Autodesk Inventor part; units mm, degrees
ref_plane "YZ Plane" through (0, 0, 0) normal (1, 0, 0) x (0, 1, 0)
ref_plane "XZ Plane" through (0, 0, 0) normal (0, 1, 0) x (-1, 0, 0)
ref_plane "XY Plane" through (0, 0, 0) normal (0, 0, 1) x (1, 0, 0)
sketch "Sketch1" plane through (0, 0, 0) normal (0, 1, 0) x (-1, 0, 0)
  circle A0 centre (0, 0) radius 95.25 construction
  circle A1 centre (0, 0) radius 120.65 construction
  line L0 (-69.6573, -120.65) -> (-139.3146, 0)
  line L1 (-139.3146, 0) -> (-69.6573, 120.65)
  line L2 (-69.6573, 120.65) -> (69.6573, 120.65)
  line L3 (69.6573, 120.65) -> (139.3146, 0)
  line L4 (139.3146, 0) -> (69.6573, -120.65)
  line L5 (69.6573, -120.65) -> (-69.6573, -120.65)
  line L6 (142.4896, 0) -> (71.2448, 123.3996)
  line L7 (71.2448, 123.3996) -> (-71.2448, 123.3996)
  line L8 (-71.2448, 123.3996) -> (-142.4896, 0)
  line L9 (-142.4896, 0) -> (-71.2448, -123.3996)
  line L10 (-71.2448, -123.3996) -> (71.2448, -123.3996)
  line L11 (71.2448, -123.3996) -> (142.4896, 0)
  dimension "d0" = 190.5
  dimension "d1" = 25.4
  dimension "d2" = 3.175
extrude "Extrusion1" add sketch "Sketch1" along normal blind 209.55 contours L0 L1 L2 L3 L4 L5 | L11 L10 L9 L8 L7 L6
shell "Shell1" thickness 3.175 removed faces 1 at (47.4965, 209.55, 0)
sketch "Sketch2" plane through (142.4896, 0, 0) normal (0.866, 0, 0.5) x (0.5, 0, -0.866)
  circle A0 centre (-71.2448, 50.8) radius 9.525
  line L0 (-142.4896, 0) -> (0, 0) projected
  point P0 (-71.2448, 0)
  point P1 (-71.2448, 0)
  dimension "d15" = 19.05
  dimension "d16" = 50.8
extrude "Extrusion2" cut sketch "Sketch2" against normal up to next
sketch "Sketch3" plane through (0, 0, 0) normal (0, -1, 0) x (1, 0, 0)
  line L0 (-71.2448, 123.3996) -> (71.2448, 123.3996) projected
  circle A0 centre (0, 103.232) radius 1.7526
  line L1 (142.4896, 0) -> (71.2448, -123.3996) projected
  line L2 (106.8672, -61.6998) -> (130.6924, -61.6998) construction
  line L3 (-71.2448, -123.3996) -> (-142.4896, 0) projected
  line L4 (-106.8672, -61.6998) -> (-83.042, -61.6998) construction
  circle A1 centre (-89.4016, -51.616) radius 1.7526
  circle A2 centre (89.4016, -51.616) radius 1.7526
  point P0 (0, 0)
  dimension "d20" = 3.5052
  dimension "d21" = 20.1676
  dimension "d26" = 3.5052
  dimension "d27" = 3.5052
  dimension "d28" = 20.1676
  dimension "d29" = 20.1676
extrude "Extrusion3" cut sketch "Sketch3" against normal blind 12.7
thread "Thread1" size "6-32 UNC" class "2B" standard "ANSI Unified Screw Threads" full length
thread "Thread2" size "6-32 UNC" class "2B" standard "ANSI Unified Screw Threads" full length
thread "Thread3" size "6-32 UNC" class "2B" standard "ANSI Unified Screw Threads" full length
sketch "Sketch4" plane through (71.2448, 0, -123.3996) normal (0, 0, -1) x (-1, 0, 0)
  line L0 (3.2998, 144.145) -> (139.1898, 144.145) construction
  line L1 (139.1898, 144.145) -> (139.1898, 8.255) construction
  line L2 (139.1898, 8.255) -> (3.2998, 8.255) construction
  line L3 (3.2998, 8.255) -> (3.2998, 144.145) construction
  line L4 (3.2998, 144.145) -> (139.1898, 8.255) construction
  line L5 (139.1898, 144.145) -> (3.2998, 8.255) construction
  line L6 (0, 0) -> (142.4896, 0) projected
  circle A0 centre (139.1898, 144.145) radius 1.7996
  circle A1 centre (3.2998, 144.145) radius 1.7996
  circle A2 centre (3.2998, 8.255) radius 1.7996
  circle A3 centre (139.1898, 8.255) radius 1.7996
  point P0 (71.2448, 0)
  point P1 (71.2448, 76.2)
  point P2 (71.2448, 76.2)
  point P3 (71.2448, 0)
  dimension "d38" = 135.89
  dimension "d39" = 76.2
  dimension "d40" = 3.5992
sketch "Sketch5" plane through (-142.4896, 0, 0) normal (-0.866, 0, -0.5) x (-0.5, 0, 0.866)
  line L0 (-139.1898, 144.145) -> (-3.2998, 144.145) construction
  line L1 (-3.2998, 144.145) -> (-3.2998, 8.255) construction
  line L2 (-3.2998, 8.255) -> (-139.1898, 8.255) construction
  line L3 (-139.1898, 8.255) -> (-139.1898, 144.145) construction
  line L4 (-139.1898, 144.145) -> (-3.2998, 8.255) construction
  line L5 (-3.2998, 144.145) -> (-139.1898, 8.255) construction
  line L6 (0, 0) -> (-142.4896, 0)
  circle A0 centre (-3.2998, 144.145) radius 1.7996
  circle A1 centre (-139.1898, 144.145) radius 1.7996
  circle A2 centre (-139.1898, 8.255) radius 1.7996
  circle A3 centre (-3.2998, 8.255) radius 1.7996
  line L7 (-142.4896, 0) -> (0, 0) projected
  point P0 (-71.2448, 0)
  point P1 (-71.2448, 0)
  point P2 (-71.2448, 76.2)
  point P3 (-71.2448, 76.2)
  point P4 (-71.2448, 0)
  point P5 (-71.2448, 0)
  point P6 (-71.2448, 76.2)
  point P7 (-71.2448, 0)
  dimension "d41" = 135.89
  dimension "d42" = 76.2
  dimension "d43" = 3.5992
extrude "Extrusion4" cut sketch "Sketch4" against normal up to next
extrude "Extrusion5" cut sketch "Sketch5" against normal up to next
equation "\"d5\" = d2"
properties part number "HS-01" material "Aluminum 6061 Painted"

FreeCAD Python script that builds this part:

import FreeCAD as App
import Part
import Sketcher
Q = App.Units.Quantity


def faces_at(feature, points):
    """Names of the faces that lie closest to the given points."""
    faces = feature.Shape.Faces
    near = lambda p: min(range(len(faces)), key=lambda i: faces[i].distToShape(Part.Vertex(*p))[0])
    return sorted({f"Face{near(p) + 1}" for p in points})


def add_polygon(sketch, points):
    """Adds a closed chain of lines whose ends are joined by coincident constraints."""
    first, n = sketch.GeometryCount, len(points)
    for a, b in zip(points, points[1:] + points[:1]):
        sketch.addGeometry(Part.LineSegment(App.Vector(*a, 0), App.Vector(*b, 0)), False)
    for i in range(n):
        sketch.addConstraint(Sketcher.Constraint("Coincident", first + i, 2, first + (i + 1) % n, 1))

doc = App.newDocument("Part")
body = doc.addObject("PartDesign::Body", "Body")

# Sketch on XZ plane
sketch1 = doc.addObject("Sketcher::SketchObject", "Sketch")
body.addObject(sketch1)
sketch1.AttachmentSupport = (doc.XZ_Plane, [""])
sketch1.MapMode = "FlatFace"
add_polygon(sketch1, [(-71, -123), (-142, 0), (-71, 123), (71, 123), (142, 0), (71, -123)])  # lines 0-5
sketch1.addConstraint([
    Sketcher.Constraint("Horizontal", 2),
    Sketcher.Constraint("Horizontal", 5),
    Sketcher.Constraint("Symmetric", 0, 2, 3, 2, -1, 1),
    Sketcher.Constraint("Symmetric", 1, 2, 4, 2, -1, 1),
    Sketcher.Constraint("PointOnObject", 0, 2, -1),
    Sketcher.Constraint("Parallel", 0, 3),
    Sketcher.Constraint("Vertical", 2, 2, 4, 2),
    Sketcher.Constraint("Angle", 0, Q("120 deg")),
    Sketcher.Constraint("DistanceX", 2, 1, 2, 2, 142.4896),
    Sketcher.Constraint("DistanceY", 4, 2, 2, 2, Q("9.7165 in")),
])
pad1 = doc.addObject("PartDesign::Pad", "Pad")
body.addObject(pad1)
pad1.Profile = sketch1
pad1.Length = Q("8.25 in")
pad1.Reversed = True
doc.recompute()

thickness = doc.addObject("PartDesign::Thickness", "Thickness")
body.addObject(thickness)
thickness.Base = (pad1, faces_at(pad1, [(47.496, 209.55, 0)]))
thickness.Value = Q("0.125 in")
thickness.Reversed = True
thickness.Join = "Intersection"

# Sketch on an angled plane
sketch2 = doc.addObject("Sketcher::SketchObject", "Sketch001")
body.addObject(sketch2)
sketch2.Placement = App.Placement(App.Vector(142.4896, 0, 0), App.Rotation(App.Vector(0.5, 0, -0.866025404), App.Vector(0, 1, 0), App.Vector(0.866025404, 0, 0.5), "ZXY"))
sketch2.addGeometry(Part.Circle(App.Vector(-71, 51, 0), App.Vector(0, 0, 1), 10), False)
sketch2.addConstraint([
    Sketcher.Constraint("Diameter", 0, Q("0.75 in")),
    Sketcher.Constraint("DistanceY", -1, 1, 0, 3, Q("2 in")),
    Sketcher.Constraint("DistanceX", 0, 3, -1, 1, 71.2448),
])
pocket1 = doc.addObject("PartDesign::Pocket", "Pocket")
body.addObject(pocket1)
pocket1.Profile = sketch2
pocket1.Type = "UpToFirst"

# Sketch on XZ plane
sketch3 = doc.addObject("Sketcher::SketchObject", "Sketch002")
body.addObject(sketch3)
sketch3.AttachmentSupport = (doc.XZ_Plane, [""])
sketch3.MapMode = "FlatFace"
sketch3.addGeometry([
    Part.Circle(App.Vector(0, 103.2, 0), App.Vector(0, 0, 1), 1.8),
    Part.Circle(App.Vector(-89.4, -51.6, 0), App.Vector(0, 0, 1), 1.8),
    Part.Circle(App.Vector(89.4, -51.6, 0), App.Vector(0, 0, 1), 1.8),
], False)
sketch3.addConstraint([
    Sketcher.Constraint("Equal", 0, 1),
    Sketcher.Constraint("Equal", 1, 2),
    Sketcher.Constraint("Symmetric", 1, 3, 2, 3, -2),
    Sketcher.Constraint("PointOnObject", 0, 3, -2),
    Sketcher.Constraint("Diameter", 0, Q("0.138 in")),
    Sketcher.Constraint("DistanceX", 1, 3, 2, 3, Q("7.0395 in")),
    Sketcher.Constraint("DistanceY", -1, 1, 0, 3, 103.232),
    Sketcher.Constraint("DistanceY", 1, 3, -1, 1, 51.616),
])
pocket2 = doc.addObject("PartDesign::Pocket", "Pocket001")
body.addObject(pocket2)
pocket2.Profile = sketch3
pocket2.Length = Q("0.5 in")

# Sketch on XY plane
sketch4 = doc.addObject("Sketcher::SketchObject", "Sketch003")
body.addObject(sketch4)
sketch4.AttachmentSupport = (doc.XY_Plane, [""])
sketch4.MapMode = "FlatFace"
sketch4.AttachmentOffset = App.Placement(App.Vector(0, 0, -123.3996), App.Rotation())
sketch4.addGeometry([
    Part.Circle(App.Vector(-67.9, 144.1, 0), App.Vector(0, 0, 1), 1.8),
    Part.Circle(App.Vector(67.9, 144.1, 0), App.Vector(0, 0, 1), 1.8),
    Part.Circle(App.Vector(67.9, 8.3, 0), App.Vector(0, 0, 1), 1.8),
    Part.Circle(App.Vector(-67.9, 8.3, 0), App.Vector(0, 0, 1), 1.8),
], False)
sketch4.addConstraint([
    Sketcher.Constraint("Equal", 0, 1),
    Sketcher.Constraint("Equal", 1, 2),
    Sketcher.Constraint("Equal", 2, 3),
    Sketcher.Constraint("Symmetric", 0, 3, 1, 3, -2),
    Sketcher.Constraint("Symmetric", 2, 3, 3, 3, -2),
    Sketcher.Constraint("Vertical", 1, 3, 2, 3),
    Sketcher.Constraint("Diameter", 0, Q("0.1417 in")),
    Sketcher.Constraint("DistanceX", 0, 3, 1, 3, Q("5.35 in")),
    Sketcher.Constraint("DistanceY", 2, 3, 1, 3, Q("5.35 in")),
    Sketcher.Constraint("DistanceY", -1, 1, 0, 3, Q("5.675 in")),
])
pocket3 = doc.addObject("PartDesign::Pocket", "Pocket002")
body.addObject(pocket3)
pocket3.Profile = sketch4
pocket3.Length = Q("0.1477008 in")
pocket3.Reversed = True

# Sketch on an angled plane
sketch5 = doc.addObject("Sketcher::SketchObject", "Sketch004")
body.addObject(sketch5)
sketch5.Placement = App.Placement(App.Vector(-142.4896, 0, 0), App.Rotation(App.Vector(-0.5, 0, 0.866025404), App.Vector(0, 1, 0), App.Vector(-0.866025404, 0, -0.5), "ZXY"))
sketch5.addGeometry([
    Part.Circle(App.Vector(-3.3, 144.1, 0), App.Vector(0, 0, 1), 1.8),
    Part.Circle(App.Vector(-139.2, 144.1, 0), App.Vector(0, 0, 1), 1.8),
    Part.Circle(App.Vector(-139.2, 8.3, 0), App.Vector(0, 0, 1), 1.8),
    Part.Circle(App.Vector(-3.3, 8.3, 0), App.Vector(0, 0, 1), 1.8),
], False)
sketch5.addConstraint([
    Sketcher.Constraint("Equal", 0, 1),
    Sketcher.Constraint("Equal", 1, 2),
    Sketcher.Constraint("Equal", 2, 3),
    Sketcher.Constraint("Horizontal", 0, 3, 1, 3),
    Sketcher.Constraint("Horizontal", 2, 3, 3, 3),
    Sketcher.Constraint("Vertical", 1, 3, 2, 3),
    Sketcher.Constraint("Vertical", 0, 3, 3, 3),
    Sketcher.Constraint("Diameter", 0, Q("0.1417 in")),
    Sketcher.Constraint("DistanceX", 1, 3, 0, 3, Q("5.35 in")),
    Sketcher.Constraint("DistanceY", 2, 3, 1, 3, Q("5.35 in")),
    Sketcher.Constraint("DistanceY", -1, 1, 0, 3, Q("5.675 in")),
    Sketcher.Constraint("DistanceX", 0, 3, -1, 1, 3.2998),
])
pocket4 = doc.addObject("PartDesign::Pocket", "Pocket003")
body.addObject(pocket4)
pocket4.Profile = sketch5
pocket4.Length = Q("0.1477008 in")

doc.recompute()
